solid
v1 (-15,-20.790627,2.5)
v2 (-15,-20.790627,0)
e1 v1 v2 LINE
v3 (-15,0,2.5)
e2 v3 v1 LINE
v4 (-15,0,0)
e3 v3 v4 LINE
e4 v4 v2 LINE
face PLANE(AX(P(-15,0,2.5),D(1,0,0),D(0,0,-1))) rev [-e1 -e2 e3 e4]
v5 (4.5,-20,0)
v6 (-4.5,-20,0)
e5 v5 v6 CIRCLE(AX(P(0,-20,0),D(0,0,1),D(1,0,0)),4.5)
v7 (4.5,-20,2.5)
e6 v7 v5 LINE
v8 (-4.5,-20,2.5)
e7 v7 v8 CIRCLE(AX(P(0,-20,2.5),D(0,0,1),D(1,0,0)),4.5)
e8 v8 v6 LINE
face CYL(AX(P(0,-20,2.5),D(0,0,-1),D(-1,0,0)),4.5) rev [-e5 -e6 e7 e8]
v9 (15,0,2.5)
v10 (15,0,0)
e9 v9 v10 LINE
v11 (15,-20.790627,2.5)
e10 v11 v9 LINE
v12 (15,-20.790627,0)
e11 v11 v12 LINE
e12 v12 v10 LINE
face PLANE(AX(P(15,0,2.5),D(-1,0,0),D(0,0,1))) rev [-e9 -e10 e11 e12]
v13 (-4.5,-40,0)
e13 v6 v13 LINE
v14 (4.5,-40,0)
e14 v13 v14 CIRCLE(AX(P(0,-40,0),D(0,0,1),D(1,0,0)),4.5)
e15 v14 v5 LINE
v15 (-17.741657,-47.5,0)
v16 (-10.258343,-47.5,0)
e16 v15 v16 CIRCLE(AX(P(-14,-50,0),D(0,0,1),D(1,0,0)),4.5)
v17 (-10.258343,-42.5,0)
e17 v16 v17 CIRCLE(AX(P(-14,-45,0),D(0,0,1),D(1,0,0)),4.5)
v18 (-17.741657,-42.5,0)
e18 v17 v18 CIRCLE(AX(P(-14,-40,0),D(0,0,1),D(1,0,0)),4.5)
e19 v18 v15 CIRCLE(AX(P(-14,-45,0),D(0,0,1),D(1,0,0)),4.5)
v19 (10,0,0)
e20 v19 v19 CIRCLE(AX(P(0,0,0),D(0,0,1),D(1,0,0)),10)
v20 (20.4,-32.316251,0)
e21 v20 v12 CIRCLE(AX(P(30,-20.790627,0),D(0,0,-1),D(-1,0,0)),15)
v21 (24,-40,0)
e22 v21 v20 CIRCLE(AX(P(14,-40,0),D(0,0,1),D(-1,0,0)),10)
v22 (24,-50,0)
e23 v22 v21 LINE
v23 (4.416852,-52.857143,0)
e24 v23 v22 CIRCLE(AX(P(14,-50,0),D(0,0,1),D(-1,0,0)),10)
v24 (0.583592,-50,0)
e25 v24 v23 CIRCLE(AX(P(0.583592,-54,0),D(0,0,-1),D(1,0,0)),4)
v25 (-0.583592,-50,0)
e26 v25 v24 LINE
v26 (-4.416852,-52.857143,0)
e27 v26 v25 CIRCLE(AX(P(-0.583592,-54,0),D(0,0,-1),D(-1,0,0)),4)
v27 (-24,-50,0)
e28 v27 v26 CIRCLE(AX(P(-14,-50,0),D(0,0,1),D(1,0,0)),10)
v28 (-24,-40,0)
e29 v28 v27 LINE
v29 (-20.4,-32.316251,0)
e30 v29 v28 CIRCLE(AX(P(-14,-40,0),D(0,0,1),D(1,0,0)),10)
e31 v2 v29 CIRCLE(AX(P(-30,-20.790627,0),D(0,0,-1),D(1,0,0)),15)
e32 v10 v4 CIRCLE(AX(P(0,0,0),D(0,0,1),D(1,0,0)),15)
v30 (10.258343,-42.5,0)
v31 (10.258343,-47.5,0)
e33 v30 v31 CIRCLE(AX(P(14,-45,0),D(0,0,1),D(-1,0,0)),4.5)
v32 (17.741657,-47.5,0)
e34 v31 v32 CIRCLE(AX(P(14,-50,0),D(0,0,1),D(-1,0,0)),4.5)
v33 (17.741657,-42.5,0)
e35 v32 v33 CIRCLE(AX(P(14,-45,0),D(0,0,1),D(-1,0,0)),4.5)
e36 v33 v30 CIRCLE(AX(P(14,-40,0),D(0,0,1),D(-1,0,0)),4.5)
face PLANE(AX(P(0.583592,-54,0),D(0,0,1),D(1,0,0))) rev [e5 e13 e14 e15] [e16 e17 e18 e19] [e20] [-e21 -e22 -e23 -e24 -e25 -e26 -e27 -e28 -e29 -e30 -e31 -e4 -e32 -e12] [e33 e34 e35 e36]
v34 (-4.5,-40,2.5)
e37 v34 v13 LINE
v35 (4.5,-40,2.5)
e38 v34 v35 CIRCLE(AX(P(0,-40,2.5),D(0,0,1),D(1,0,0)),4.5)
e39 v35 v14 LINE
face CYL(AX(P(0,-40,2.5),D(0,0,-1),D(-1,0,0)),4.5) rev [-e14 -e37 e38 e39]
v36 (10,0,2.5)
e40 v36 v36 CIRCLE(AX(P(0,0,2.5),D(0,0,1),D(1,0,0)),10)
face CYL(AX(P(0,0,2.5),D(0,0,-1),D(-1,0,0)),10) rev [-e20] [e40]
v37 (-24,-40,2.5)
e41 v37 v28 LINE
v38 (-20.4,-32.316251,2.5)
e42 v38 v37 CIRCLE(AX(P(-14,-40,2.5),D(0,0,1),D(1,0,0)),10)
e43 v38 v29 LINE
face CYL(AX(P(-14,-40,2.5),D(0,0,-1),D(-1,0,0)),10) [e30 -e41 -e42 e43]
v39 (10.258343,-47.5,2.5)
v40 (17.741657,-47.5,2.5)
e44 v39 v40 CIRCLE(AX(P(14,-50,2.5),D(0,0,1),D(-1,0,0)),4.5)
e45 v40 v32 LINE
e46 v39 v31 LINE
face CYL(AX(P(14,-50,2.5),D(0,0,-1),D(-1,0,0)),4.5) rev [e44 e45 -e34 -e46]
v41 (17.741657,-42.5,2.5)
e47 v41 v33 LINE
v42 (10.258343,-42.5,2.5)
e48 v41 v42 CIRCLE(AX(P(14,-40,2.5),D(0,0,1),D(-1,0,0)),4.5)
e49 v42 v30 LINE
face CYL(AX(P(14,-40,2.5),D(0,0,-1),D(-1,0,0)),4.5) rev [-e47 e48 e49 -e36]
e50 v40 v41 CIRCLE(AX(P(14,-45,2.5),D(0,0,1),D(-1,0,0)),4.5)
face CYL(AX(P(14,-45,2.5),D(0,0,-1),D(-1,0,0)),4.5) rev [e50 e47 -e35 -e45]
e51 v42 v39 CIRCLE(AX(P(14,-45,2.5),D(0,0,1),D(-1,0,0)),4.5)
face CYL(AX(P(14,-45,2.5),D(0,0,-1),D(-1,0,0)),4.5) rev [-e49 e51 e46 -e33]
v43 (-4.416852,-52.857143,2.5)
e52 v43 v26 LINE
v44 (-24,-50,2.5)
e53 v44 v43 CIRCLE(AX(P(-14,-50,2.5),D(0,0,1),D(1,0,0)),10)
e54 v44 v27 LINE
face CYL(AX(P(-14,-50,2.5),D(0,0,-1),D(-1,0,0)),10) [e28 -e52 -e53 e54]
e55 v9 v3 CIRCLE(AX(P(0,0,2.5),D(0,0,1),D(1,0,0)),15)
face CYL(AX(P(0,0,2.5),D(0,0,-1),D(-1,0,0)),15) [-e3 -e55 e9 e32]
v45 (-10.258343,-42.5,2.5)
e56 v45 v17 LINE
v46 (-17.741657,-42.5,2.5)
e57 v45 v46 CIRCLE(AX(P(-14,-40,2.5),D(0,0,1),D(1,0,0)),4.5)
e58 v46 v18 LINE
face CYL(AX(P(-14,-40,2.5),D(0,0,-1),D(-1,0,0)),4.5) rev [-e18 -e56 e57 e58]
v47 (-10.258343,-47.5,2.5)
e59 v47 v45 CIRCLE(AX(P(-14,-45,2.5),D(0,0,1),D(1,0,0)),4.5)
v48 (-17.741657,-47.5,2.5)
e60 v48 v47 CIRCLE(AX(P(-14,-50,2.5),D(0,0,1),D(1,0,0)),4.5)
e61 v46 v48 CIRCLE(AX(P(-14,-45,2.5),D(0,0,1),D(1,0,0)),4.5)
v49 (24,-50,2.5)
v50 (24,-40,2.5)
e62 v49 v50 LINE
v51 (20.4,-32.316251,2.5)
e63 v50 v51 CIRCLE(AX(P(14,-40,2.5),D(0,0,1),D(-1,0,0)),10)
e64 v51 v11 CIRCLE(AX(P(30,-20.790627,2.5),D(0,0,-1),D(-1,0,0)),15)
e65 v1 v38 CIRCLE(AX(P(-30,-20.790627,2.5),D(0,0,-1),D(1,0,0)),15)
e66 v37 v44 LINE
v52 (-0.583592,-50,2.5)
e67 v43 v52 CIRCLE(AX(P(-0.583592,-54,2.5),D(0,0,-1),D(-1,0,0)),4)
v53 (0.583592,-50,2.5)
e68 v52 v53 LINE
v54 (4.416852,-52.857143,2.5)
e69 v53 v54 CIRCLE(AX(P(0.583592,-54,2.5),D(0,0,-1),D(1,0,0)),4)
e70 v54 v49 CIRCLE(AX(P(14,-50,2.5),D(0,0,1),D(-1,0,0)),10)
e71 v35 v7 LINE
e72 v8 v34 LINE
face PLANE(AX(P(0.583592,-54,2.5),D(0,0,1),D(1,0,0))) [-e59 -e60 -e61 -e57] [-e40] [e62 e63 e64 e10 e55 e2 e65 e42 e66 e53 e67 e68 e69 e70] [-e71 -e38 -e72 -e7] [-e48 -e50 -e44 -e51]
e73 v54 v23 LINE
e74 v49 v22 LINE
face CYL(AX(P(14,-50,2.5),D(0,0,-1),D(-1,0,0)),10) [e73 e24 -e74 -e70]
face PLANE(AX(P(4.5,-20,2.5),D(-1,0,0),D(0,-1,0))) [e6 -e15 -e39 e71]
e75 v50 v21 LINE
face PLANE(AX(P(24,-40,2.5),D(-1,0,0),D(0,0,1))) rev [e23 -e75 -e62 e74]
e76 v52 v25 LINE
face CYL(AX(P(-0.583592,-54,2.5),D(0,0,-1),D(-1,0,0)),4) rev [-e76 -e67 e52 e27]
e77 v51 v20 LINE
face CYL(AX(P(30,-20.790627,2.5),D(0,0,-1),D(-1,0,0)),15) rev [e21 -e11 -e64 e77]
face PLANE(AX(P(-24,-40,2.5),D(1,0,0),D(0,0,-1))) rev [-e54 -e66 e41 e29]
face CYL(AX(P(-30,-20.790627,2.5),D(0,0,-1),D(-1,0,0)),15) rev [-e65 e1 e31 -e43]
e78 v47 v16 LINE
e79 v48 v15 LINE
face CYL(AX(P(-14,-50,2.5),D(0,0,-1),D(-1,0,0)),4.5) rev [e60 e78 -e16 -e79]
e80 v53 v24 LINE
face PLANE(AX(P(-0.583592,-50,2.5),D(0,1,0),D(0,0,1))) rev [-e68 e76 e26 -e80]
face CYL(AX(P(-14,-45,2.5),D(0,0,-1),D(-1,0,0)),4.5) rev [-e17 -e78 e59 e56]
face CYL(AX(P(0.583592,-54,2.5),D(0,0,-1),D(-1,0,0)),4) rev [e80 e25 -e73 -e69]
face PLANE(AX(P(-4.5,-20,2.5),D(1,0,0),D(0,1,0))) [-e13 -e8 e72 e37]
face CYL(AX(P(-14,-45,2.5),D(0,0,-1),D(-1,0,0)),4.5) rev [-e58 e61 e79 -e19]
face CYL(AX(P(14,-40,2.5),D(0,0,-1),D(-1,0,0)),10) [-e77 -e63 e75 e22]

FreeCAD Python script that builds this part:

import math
import FreeCAD as App
import Part
import Sketcher
from FreeCAD import Vector

doc = App.newDocument("Part")
params = doc.addObject("Spreadsheet::Sheet", "Params")
for row, (alias, value) in enumerate([
    ("sketch1_diameter", "20 mm"),
    ("sketch1_radius", "4 mm"),
    ("sketch1_radius2", "15 mm"),
    ("sketch1_radius3", "4.5 mm"),
    ("sketch1_height", "10 mm"),
    ("pad1_length", "2.5 mm"),
], start=1):
    params.set(f"A{row}", alias)
    params.set(f"B{row}", "=" + value)
    params.setAlias(f"B{row}", alias)

body = doc.addObject("PartDesign::Body", "Body")

# Sketch on XY plane
sketch1 = body.newObject("Sketcher::SketchObject", "Sketch")
sketch1.AttachmentSupport = (doc.getObject("XY_Plane"), [""])
sketch1.MapMode = "FlatFace"
sketch1.addGeometry([
    Part.LineSegment(Vector(-24, -40, 0), Vector(-24, -50, 0)),  # 0
    Part.ArcOfCircle(Part.Circle(Vector(-14, -50, 0), Vector(0, 0, 1), 10), math.radians(180), math.radians(343)),  # 1
    Part.ArcOfCircle(Part.Circle(Vector(-0.6, -54, 0), Vector(0, 0, 1), 4), math.radians(90), math.radians(163)),  # 2
    Part.LineSegment(Vector(-0.6, -50, 0), Vector(0.6, -50, 0)),  # 3
    Part.ArcOfCircle(Part.Circle(Vector(0.6, -54, 0), Vector(0, 0, 1), 4), math.radians(17), math.radians(90)),  # 4
    Part.ArcOfCircle(Part.Circle(Vector(14, -50, 0), Vector(0, 0, 1), 10), math.radians(-163), math.radians(0)),  # 5
    Part.LineSegment(Vector(24, -50, 0), Vector(24, -40, 0)),  # 6
    Part.ArcOfCircle(Part.Circle(Vector(14, -40, 0), Vector(0, 0, 1), 10), math.radians(0), math.radians(50)),  # 7
    Part.ArcOfCircle(Part.Circle(Vector(30, -20.8, 0), Vector(0, 0, 1), 15), math.radians(-180), math.radians(-130)),  # 8
    Part.LineSegment(Vector(15, -20.8, 0), Vector(15, 0, 0)),  # 9
    Part.ArcOfCircle(Part.Circle(Vector(0, 0, 0), Vector(0, 0, 1), 15), math.radians(0), math.radians(180)),  # 10
    Part.LineSegment(Vector(-15, 0, 0), Vector(-15, -20.8, 0)),  # 11
    Part.ArcOfCircle(Part.Circle(Vector(-30, -20.8, 0), Vector(0, 0, 1), 15), math.radians(-50), math.radians(0)),  # 12
    Part.ArcOfCircle(Part.Circle(Vector(-14, -40, 0), Vector(0, 0, 1), 10), math.radians(130), math.radians(180)),  # 13
    Part.ArcOfCircle(Part.Circle(Vector(-14, -50, 0), Vector(0, 0, 1), 4.5), math.radians(146), math.radians(394)),  # 14
    Part.ArcOfCircle(Part.Circle(Vector(-14, -45, 0), Vector(0, 0, 1), 4.5), math.radians(146), math.radians(214)),  # 15
    Part.ArcOfCircle(Part.Circle(Vector(-14, -40, 0), Vector(0, 0, 1), 4.5), math.radians(-34), math.radians(214)),  # 16
    Part.ArcOfCircle(Part.Circle(Vector(-14, -45, 0), Vector(0, 0, 1), 4.5), math.radians(-34), math.radians(34)),  # 17
    Part.ArcOfCircle(Part.Circle(Vector(14, -50, 0), Vector(0, 0, 1), 4.5), math.radians(146), math.radians(394)),  # 18
    Part.ArcOfCircle(Part.Circle(Vector(14, -45, 0), Vector(0, 0, 1), 4.5), math.radians(146), math.radians(214)),  # 19
    Part.ArcOfCircle(Part.Circle(Vector(14, -40, 0), Vector(0, 0, 1), 4.5), math.radians(-34), math.radians(214)),  # 20
    Part.ArcOfCircle(Part.Circle(Vector(14, -45, 0), Vector(0, 0, 1), 4.5), math.radians(-34), math.radians(34)),  # 21
    Part.LineSegment(Vector(-4.5, -40, 0), Vector(-4.5, -20, 0)),  # 22
    Part.ArcOfCircle(Part.Circle(Vector(0, -20, 0), Vector(0, 0, 1), 4.5), math.radians(0), math.radians(180)),  # 23
    Part.LineSegment(Vector(4.5, -20, 0), Vector(4.5, -40, 0)),  # 24
    Part.ArcOfCircle(Part.Circle(Vector(0, -40, 0), Vector(0, 0, 1), 4.5), math.radians(180), math.radians(360)),  # 25
    Part.Circle(Vector(0, 0, 0), Vector(0, 0, 1), 10),  # 26
], False)
sketch1.addConstraint([
    Sketcher.Constraint("Tangent", 0, 2, 1, 1),
    Sketcher.Constraint("Tangent", 1, 2, 2, 2),
    Sketcher.Constraint("Tangent", 2, 1, 3, 1),
    Sketcher.Constraint("Tangent", 3, 2, 4, 2),
    Sketcher.Constraint("Tangent", 4, 1, 5, 1),
    Sketcher.Constraint("Tangent", 5, 2, 6, 1),
    Sketcher.Constraint("Tangent", 6, 2, 7, 1),
    Sketcher.Constraint("Tangent", 7, 2, 8, 2),
    Sketcher.Constraint("Tangent", 8, 1, 9, 1),
    Sketcher.Constraint("Tangent", 9, 2, 10, 1),
    Sketcher.Constraint("Tangent", 10, 2, 11, 1),
    Sketcher.Constraint("Tangent", 11, 2, 12, 2),
    Sketcher.Constraint("Tangent", 12, 1, 13, 1),
    Sketcher.Constraint("Tangent", 13, 2, 0, 1),
    Sketcher.Constraint("Coincident", 14, 1, 15, 2),
    Sketcher.Constraint("Coincident", 15, 1, 16, 2),
    Sketcher.Constraint("Coincident", 16, 1, 17, 2),
    Sketcher.Constraint("Coincident", 17, 1, 14, 2),
    Sketcher.Constraint("Coincident", 18, 1, 19, 2),
    Sketcher.Constraint("Coincident", 19, 1, 20, 2),
    Sketcher.Constraint("Coincident", 20, 1, 21, 2),
    Sketcher.Constraint("Coincident", 21, 1, 18, 2),
    Sketcher.Constraint("Tangent", 22, 2, 23, 2),
    Sketcher.Constraint("Tangent", 23, 1, 24, 1),
    Sketcher.Constraint("Tangent", 24, 2, 25, 2),
    Sketcher.Constraint("Tangent", 25, 1, 22, 1),
    Sketcher.Constraint("Vertical", 0),
    Sketcher.Constraint("Horizontal", 3),
    Sketcher.Constraint("Vertical", 6),
    Sketcher.Constraint("Vertical", 9),
    Sketcher.Constraint("Vertical", 11),
    Sketcher.Constraint("Vertical", 22),
    Sketcher.Constraint("Vertical", 24),
    Sketcher.Constraint("Coincident", 10, 3, -1, 1),
    Sketcher.Constraint("Coincident", 26, 3, -1, 1),
    Sketcher.Constraint("Coincident", 14, 3, 1, 3),
    Sketcher.Constraint("Coincident", 16, 3, 13, 3),
    Sketcher.Constraint("Coincident", 17, 3, 15, 3),
    Sketcher.Constraint("Coincident", 18, 3, 5, 3),
    Sketcher.Constraint("Coincident", 20, 3, 7, 3),
    Sketcher.Constraint("Coincident", 21, 3, 19, 3),
    Sketcher.Constraint("Equal", 2, 4),
    Sketcher.Constraint("Equal", 1, 5),
    Sketcher.Constraint("Equal", 5, 7),
    Sketcher.Constraint("Equal", 8, 10),
    Sketcher.Constraint("Equal", 10, 12),
    Sketcher.Constraint("Equal", 7, 13),
    Sketcher.Constraint("Equal", 14, 15),
    Sketcher.Constraint("Equal", 15, 16),
    Sketcher.Constraint("Equal", 16, 17),
    Sketcher.Constraint("Equal", 17, 18),
    Sketcher.Constraint("Equal", 18, 19),
    Sketcher.Constraint("Equal", 19, 20),
    Sketcher.Constraint("Equal", 20, 21),
    Sketcher.Constraint("Equal", 21, 23),
    Sketcher.Constraint("Equal", 13, 26),
    Sketcher.Constraint("Symmetric", 1, 3, 5, 3, -2),
    Sketcher.Constraint("Symmetric", 15, 3, 19, 3, -2),
    Sketcher.Constraint("PointOnObject", 23, 3, -2),
    Sketcher.Constraint("Horizontal", 8, 3, 12, 3),
    Sketcher.Constraint("Horizontal", 20, 3, 25, 3),
    Sketcher.Constraint("Horizontal", 0, 2, 2, 1),
    Sketcher.Constraint("Horizontal", 15, 1, 16, 1),
    Sketcher.Constraint("Vertical", 14, 1, 15, 1),
    Sketcher.Constraint("Diameter", 26, 20.0),
    Sketcher.Constraint("Radius", 2, 4.0),
    Sketcher.Constraint("Radius", 8, 15.0),
    Sketcher.Constraint("Radius", 14, 4.5),
    Sketcher.Constraint("DistanceY", 0, 2, 0, 1, 10.0),
    Sketcher.Constraint("DistanceY", 22, 1, 22, 2, 20.0),
    Sketcher.Constraint("DistanceX", 1, 3, -1, 1, 14.0),
    Sketcher.Constraint("DistanceY", 1, 3, -1, 1, 50.0),
])
sketch1.setExpression("Constraints[64]", "Params.sketch1_diameter")
sketch1.setExpression("Constraints[65]", "Params.sketch1_radius")
sketch1.setExpression("Constraints[66]", "Params.sketch1_radius2")
sketch1.setExpression("Constraints[67]", "Params.sketch1_radius3")
sketch1.setExpression("Constraints[68]", "Params.sketch1_height")
pad1 = body.newObject("PartDesign::Pad", "Pad")
pad1.Profile = sketch1
pad1.setExpression("Length", "Params.pad1_length")

doc.recompute()
